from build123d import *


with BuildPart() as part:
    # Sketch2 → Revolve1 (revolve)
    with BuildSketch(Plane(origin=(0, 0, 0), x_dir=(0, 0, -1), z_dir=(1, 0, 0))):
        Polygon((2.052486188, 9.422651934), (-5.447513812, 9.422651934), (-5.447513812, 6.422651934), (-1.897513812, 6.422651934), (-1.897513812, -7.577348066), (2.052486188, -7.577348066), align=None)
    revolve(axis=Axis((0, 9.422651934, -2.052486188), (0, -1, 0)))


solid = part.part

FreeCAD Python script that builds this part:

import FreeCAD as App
import Part
import Sketcher

V = App.Vector

doc = App.newDocument("Part")
body = doc.addObject("PartDesign::Body", "Body")

# Sketch on YZ plane
sketch1 = doc.addObject("Sketcher::SketchObject", "Sketch")
body.addObject(sketch1)
sketch1.AttachmentSupport = (doc.YZ_Plane, [""])
sketch1.MapMode = "FlatFace"
sketch1.addGeometry([
    Part.LineSegment(V(9.4, -2.1, 0), V(9.4, 5.4, 0)),  # 0
    Part.LineSegment(V(9.4, 5.4, 0), V(6.4, 5.4, 0)),  # 1
    Part.LineSegment(V(6.4, 5.4, 0), V(6.4, 1.9, 0)),  # 2
    Part.LineSegment(V(6.4, 1.9, 0), V(-7.6, 1.9, 0)),  # 3
    Part.LineSegment(V(-7.6, 1.9, 0), V(-7.6, -2.1, 0)),  # 4
    Part.LineSegment(V(-7.6, -2.1, 0), V(9.4, -2.1, 0)),  # 5
], False)
sketch1.addGeometry(Part.LineSegment(V(9.4, -2.1, 0), V(-7.6, -2.1, 0)), True)  # axis
sketch1.addConstraint([
    Sketcher.Constraint("Coincident", 0, 2, 1, 1),
    Sketcher.Constraint("Coincident", 1, 2, 2, 1),
    Sketcher.Constraint("Coincident", 2, 2, 3, 1),
    Sketcher.Constraint("Coincident", 3, 2, 4, 1),
    Sketcher.Constraint("Coincident", 4, 2, 5, 1),
    Sketcher.Constraint("Coincident", 5, 2, 0, 1),
    Sketcher.Constraint("Vertical", 0),
    Sketcher.Constraint("Horizontal", 1),
    Sketcher.Constraint("Vertical", 2),
    Sketcher.Constraint("Horizontal", 3),
    Sketcher.Constraint("Vertical", 4),
    Sketcher.Constraint("Horizontal", 5),
    Sketcher.Constraint("Horizontal", 6),
    Sketcher.Constraint("Coincident", 6, 1, 5, 2),
    Sketcher.Constraint("Vertical", 3, 2, 6, 2),
    Sketcher.Constraint("DistanceX", 1, 2, 1, 1, 3.0),
    Sketcher.Constraint("DistanceX", 3, 2, 3, 1, 14.0),
    Sketcher.Constraint("DistanceY", 0, 1, 0, 2, 7.5),
    Sketcher.Constraint("DistanceY", 2, 2, 2, 1, 3.55),
    Sketcher.Constraint("DistanceX", -1, 1, 0, 2, 9.422652),
    Sketcher.Constraint("DistanceY", -1, 1, 0, 2, 5.447514),
])
revolution = doc.addObject("PartDesign::Revolution", "Revolution")
body.addObject(revolution)
revolution.Profile = sketch1
revolution.ReferenceAxis = (sketch1, ["Axis0"])
revolution.Angle = 360

doc.recompute()
